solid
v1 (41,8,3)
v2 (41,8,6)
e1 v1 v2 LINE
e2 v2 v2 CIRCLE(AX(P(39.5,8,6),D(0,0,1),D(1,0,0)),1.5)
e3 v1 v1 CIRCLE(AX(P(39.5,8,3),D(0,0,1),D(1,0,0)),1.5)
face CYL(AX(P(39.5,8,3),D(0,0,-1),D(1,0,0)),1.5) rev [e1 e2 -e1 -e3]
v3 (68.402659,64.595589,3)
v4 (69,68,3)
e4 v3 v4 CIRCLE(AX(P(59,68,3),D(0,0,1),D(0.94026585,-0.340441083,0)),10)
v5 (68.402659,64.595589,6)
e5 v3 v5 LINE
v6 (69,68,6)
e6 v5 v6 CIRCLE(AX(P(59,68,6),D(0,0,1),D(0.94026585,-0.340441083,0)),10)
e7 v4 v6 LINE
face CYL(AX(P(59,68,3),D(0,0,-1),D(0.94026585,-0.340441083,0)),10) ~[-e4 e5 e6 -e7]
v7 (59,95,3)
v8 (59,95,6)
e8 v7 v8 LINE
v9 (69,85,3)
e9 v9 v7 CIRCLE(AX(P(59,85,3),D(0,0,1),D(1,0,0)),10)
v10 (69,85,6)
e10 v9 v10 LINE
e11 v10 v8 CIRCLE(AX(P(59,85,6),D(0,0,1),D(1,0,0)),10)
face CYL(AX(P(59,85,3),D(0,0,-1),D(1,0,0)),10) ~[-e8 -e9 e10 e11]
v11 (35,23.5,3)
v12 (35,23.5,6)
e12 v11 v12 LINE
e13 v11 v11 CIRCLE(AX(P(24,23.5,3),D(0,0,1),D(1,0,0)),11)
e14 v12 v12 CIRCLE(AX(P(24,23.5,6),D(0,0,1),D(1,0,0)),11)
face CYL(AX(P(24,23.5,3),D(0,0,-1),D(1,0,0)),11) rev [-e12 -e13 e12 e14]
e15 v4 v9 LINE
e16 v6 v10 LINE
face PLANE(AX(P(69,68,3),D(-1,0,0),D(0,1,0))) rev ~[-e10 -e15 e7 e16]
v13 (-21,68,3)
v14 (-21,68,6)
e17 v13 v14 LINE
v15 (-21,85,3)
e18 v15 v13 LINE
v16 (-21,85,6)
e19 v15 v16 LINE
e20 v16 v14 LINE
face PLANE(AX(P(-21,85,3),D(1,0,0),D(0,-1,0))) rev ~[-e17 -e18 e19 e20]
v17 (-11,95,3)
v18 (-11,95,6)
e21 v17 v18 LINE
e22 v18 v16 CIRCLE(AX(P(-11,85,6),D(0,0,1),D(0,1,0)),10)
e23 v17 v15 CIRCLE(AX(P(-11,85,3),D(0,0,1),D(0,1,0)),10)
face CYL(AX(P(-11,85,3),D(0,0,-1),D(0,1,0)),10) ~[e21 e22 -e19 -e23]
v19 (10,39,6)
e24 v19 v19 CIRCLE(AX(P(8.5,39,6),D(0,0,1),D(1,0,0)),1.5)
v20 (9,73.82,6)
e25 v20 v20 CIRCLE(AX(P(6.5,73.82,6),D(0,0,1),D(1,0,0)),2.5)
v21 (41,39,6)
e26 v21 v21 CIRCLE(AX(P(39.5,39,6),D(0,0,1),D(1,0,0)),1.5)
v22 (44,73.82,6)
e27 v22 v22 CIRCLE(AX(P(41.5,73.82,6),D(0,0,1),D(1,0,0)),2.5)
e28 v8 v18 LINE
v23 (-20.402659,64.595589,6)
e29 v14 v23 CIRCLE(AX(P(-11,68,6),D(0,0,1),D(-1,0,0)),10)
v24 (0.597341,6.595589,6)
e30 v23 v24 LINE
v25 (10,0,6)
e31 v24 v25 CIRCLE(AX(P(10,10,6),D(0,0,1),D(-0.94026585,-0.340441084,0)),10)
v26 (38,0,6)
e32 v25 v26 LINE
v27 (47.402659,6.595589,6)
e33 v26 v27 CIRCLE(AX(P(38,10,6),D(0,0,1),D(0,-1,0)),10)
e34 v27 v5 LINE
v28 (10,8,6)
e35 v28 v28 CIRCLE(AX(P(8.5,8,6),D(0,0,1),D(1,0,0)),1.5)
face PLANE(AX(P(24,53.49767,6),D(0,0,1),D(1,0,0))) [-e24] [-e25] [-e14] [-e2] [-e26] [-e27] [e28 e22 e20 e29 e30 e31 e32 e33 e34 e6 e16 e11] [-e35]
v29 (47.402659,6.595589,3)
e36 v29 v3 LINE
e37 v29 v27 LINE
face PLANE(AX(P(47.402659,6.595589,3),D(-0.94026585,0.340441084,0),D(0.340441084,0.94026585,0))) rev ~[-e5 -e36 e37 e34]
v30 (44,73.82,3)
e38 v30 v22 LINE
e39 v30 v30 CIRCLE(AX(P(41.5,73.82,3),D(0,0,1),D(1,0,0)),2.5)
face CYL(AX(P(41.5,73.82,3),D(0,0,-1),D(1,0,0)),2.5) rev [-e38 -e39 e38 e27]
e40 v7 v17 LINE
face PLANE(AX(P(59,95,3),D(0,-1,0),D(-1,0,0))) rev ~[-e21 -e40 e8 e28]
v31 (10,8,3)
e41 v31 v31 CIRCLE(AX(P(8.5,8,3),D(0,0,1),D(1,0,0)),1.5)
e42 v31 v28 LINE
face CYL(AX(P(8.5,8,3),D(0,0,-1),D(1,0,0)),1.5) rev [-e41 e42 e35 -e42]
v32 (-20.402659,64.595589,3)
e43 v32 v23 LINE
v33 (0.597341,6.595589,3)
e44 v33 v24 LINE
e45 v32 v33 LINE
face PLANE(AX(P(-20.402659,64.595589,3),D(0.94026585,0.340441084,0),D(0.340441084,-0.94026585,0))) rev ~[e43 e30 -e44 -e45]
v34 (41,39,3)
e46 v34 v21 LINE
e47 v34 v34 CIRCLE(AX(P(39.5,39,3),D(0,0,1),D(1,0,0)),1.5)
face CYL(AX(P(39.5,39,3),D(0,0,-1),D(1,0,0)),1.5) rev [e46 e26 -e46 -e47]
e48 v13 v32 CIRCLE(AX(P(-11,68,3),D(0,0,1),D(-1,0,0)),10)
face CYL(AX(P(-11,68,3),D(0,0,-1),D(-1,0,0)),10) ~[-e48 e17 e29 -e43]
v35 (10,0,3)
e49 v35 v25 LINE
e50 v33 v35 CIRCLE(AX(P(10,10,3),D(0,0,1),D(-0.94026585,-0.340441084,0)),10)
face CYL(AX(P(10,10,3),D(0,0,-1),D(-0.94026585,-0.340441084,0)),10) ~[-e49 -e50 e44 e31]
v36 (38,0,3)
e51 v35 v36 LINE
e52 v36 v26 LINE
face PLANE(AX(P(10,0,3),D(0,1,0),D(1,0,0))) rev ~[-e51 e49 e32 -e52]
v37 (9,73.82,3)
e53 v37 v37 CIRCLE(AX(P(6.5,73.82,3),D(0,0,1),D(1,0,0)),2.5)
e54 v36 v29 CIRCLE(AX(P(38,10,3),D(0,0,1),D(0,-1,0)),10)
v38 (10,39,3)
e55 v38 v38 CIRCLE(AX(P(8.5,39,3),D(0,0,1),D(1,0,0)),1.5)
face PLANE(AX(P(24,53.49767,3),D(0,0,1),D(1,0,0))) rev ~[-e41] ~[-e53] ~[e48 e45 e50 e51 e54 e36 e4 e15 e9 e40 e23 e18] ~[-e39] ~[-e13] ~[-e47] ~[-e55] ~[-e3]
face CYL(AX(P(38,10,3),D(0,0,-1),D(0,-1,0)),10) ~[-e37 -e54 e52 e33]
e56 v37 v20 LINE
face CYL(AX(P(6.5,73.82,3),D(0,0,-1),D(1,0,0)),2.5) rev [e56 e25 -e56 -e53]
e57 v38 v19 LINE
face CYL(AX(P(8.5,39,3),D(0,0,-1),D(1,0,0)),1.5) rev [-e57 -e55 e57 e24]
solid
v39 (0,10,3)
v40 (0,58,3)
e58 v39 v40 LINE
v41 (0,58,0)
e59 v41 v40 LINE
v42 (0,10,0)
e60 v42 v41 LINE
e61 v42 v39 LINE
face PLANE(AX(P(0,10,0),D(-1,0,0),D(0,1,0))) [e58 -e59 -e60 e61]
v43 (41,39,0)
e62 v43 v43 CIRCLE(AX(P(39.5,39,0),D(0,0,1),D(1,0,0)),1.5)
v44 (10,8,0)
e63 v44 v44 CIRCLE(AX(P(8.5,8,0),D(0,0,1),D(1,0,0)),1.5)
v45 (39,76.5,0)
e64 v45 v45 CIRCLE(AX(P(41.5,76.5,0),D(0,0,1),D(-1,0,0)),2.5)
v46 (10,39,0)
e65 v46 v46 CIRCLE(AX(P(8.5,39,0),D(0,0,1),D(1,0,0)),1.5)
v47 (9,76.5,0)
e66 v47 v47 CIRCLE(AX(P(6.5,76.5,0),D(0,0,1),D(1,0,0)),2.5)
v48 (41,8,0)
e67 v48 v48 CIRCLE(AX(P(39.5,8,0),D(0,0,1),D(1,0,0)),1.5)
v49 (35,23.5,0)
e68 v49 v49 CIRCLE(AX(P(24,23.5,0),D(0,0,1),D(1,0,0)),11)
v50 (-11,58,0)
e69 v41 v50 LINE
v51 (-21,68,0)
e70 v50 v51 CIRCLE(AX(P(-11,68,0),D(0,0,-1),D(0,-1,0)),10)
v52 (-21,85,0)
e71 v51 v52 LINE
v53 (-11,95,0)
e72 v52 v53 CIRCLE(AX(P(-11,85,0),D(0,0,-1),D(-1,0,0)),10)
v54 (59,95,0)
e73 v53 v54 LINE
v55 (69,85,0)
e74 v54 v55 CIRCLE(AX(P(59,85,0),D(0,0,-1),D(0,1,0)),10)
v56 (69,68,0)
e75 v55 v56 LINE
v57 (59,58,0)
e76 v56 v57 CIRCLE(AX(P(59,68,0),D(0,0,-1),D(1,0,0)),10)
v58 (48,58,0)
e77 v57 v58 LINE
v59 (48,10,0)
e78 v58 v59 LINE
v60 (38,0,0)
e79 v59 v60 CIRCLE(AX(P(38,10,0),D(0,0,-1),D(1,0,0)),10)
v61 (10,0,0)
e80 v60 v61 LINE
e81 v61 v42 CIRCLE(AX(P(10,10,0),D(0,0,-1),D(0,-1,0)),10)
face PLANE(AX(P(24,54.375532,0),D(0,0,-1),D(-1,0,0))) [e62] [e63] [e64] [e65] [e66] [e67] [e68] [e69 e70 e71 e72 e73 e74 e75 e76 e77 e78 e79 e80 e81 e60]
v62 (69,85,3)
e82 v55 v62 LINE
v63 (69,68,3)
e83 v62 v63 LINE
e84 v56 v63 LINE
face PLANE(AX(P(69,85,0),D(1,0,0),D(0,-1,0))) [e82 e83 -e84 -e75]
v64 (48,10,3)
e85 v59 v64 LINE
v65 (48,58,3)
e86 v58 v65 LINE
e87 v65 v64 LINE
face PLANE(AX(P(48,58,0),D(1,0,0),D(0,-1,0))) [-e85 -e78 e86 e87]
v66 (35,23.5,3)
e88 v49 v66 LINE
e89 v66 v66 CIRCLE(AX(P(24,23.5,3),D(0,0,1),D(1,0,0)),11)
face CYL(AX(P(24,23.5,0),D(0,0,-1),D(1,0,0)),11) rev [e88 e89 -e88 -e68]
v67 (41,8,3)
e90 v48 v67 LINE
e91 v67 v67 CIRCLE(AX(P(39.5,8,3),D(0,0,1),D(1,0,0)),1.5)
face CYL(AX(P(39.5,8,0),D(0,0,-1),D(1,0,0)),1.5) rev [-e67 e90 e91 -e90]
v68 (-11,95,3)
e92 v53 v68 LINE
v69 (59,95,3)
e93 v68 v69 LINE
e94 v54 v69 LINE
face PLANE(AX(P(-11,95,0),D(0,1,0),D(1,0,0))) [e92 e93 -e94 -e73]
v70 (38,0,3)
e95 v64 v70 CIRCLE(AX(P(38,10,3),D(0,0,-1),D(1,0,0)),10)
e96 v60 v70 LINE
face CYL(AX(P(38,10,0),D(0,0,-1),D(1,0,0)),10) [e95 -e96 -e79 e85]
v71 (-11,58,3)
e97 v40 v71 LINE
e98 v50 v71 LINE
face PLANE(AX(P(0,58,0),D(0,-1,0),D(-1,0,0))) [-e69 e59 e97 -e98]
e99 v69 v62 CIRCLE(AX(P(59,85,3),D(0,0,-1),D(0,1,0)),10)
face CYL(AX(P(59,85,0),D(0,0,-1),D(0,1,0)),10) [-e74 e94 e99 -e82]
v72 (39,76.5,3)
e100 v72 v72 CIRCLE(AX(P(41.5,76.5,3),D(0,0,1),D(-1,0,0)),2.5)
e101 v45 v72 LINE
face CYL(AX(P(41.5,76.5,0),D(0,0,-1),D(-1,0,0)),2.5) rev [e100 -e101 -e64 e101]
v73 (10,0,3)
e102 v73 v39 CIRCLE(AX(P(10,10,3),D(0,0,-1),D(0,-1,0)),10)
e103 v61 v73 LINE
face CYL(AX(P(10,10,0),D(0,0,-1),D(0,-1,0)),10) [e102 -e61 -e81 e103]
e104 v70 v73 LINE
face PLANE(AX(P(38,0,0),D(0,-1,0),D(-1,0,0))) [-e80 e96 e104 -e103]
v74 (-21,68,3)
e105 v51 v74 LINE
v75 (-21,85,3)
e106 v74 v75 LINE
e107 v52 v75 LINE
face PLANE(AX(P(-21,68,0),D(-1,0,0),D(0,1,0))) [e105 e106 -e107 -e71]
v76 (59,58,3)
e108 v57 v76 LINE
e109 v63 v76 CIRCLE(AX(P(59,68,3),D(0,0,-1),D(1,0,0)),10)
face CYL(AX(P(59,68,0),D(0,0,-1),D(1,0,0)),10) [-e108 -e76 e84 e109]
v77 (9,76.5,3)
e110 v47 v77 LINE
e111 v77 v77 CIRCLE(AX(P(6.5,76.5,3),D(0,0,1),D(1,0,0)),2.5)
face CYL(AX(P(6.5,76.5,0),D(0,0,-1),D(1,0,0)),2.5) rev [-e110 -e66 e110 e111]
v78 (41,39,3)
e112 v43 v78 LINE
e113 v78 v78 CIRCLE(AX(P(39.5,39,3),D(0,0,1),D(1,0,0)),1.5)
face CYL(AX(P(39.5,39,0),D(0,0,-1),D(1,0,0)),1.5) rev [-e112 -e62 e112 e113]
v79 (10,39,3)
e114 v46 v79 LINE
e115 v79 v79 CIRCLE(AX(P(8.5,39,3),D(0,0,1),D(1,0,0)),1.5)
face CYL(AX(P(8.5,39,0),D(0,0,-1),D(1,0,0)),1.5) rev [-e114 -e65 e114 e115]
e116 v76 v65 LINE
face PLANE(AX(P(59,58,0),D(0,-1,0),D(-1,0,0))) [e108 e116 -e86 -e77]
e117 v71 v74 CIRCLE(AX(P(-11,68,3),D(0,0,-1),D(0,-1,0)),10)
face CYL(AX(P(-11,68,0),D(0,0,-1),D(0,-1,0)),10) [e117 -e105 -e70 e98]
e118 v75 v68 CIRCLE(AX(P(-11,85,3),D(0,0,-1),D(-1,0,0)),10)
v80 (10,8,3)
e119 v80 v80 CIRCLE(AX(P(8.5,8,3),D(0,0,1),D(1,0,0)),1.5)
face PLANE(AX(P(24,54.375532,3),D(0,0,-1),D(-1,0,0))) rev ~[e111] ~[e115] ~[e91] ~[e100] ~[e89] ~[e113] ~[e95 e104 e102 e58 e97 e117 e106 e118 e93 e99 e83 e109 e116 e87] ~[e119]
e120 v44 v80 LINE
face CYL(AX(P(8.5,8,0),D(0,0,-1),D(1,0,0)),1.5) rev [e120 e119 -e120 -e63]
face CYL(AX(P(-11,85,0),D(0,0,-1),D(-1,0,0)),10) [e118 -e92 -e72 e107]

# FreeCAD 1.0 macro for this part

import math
import FreeCAD as App
import Part
import Sketcher

V = App.Vector
Q = App.Units.Quantity

doc = App.newDocument("Part")
body = doc.addObject("PartDesign::Body", "Body")

sketch1 = body.newObject("Sketcher::SketchObject", "Sketch")
sketch1.AttachmentSupport = (doc.getObject("XY_Plane"), [""])
sketch1.MapMode = "FlatFace"
sketch1.addGeometry([
    Part.LineSegment(V(0, 58, 0), V(0, 10, 0)),
    Part.ArcOfCircle(Part.Circle(V(10, 10, 0), V(0, 0, 1), 10), math.radians(180), math.radians(270)),
    Part.LineSegment(V(10, 0, 0), V(38, 0, 0)),
    Part.ArcOfCircle(Part.Circle(V(38, 10, 0), V(0, 0, 1), 10), math.radians(-90), math.radians(0)),
    Part.LineSegment(V(48, 10, 0), V(48, 58, 0)),
    Part.LineSegment(V(48, 58, 0), V(59, 58, 0)),
    Part.ArcOfCircle(Part.Circle(V(59, 68, 0), V(0, 0, 1), 10), math.radians(-90), math.radians(0)),
    Part.LineSegment(V(69, 68, 0), V(69, 85, 0)),
    Part.ArcOfCircle(Part.Circle(V(59, 85, 0), V(0, 0, 1), 10), math.radians(0), math.radians(90)),
    Part.LineSegment(V(59, 95, 0), V(-11, 95, 0)),
    Part.ArcOfCircle(Part.Circle(V(-11, 85, 0), V(0, 0, 1), 10), math.radians(90), math.radians(180)),
    Part.LineSegment(V(-21, 85, 0), V(-21, 68, 0)),
    Part.ArcOfCircle(Part.Circle(V(-11, 68, 0), V(0, 0, 1), 10), math.radians(180), math.radians(270)),
    Part.LineSegment(V(-11, 58, 0), V(0, 58, 0)),
    Part.Circle(V(39.5, 8, 0), V(0, 0, 1), 1.5),
    Part.Circle(V(39.5, 39, 0), V(0, 0, 1), 1.5),
    Part.Circle(V(24, 23.5, 0), V(0, 0, 1), 11),
    Part.Circle(V(8.5, 8, 0), V(0, 0, 1), 1.5),
    Part.Circle(V(8.5, 39, 0), V(0, 0, 1), 1.5),
    Part.Circle(V(41.5, 76.5, 0), V(0, 0, 1), 2.5),
    Part.Circle(V(6.5, 76.5, 0), V(0, 0, 1), 2.5),
], False)
sketch1.addConstraint([
    Sketcher.Constraint("Tangent", 0, 2, 1, 1),
    Sketcher.Constraint("Tangent", 1, 2, 2, 1),
    Sketcher.Constraint("Tangent", 2, 2, 3, 1),
    Sketcher.Constraint("Tangent", 3, 2, 4, 1),
    Sketcher.Constraint("Coincident", 4, 2, 5, 1),
    Sketcher.Constraint("Tangent", 5, 2, 6, 1),
    Sketcher.Constraint("Tangent", 6, 2, 7, 1),
    Sketcher.Constraint("Tangent", 7, 2, 8, 1),
    Sketcher.Constraint("Tangent", 8, 2, 9, 1),
    Sketcher.Constraint("Tangent", 9, 2, 10, 1),
    Sketcher.Constraint("Tangent", 10, 2, 11, 1),
    Sketcher.Constraint("Tangent", 11, 2, 12, 1),
    Sketcher.Constraint("Tangent", 12, 2, 13, 1),
    Sketcher.Constraint("Coincident", 13, 2, 0, 1),
    Sketcher.Constraint("Vertical", 0),
    Sketcher.Constraint("Horizontal", 2),
    Sketcher.Constraint("Vertical", 4),
    Sketcher.Constraint("Horizontal", 5),
    Sketcher.Constraint("Vertical", 7),
    Sketcher.Constraint("Horizontal", 9),
    Sketcher.Constraint("Vertical", 11),
    Sketcher.Constraint("Horizontal", 13),
    Sketcher.Constraint("Equal", 1, 3),
    Sketcher.Constraint("Equal", 3, 6),
    Sketcher.Constraint("Equal", 6, 8),
    Sketcher.Constraint("Equal", 8, 10),
    Sketcher.Constraint("Equal", 10, 12),
    Sketcher.Constraint("Equal", 14, 15),
    Sketcher.Constraint("Equal", 15, 17),
    Sketcher.Constraint("Equal", 17, 18),
    Sketcher.Constraint("Equal", 19, 20),
    Sketcher.Constraint("PointOnObject", 0, 2, -2),
    Sketcher.Constraint("PointOnObject", 1, 2, -1),
    Sketcher.Constraint("Horizontal", 6, 3, 12, 3),
    Sketcher.Constraint("Horizontal", 14, 3, 17, 3),
    Sketcher.Constraint("Horizontal", 15, 3, 18, 3),
    Sketcher.Constraint("Horizontal", 19, 3, 20, 3),
    Sketcher.Constraint("Vertical", 14, 3, 15, 3),
    Sketcher.Constraint("Vertical", 17, 3, 18, 3),
    Sketcher.Constraint("Equal", 5, 13),
    Sketcher.Constraint("Diameter", 14, Q("3 mm")),
    Sketcher.Constraint("Diameter", 16, Q("22 mm")),
    Sketcher.Constraint("Diameter", 19, Q("5 mm")),
    Sketcher.Constraint("Radius", 1, Q("10 mm")),
    Sketcher.Constraint("DistanceX", 2, 1, 2, 2, Q("28 mm")),
    Sketcher.Constraint("DistanceX", 5, 1, 5, 2, Q("11 mm")),
    Sketcher.Constraint("DistanceY", 0, 2, 0, 1, Q("48 mm")),
    Sketcher.Constraint("DistanceY", 7, 1, 7, 2, Q("17 mm")),
    Sketcher.Constraint("DistanceY", -1, 1, 14, 3, Q("8 mm")),
    Sketcher.Constraint("DistanceY", -1, 1, 15, 3, Q("39 mm")),
    Sketcher.Constraint("DistanceX", -1, 1, 16, 3, Q("24 mm")),
    Sketcher.Constraint("DistanceX", 17, 3, 14, 3, Q("31 mm")),
    Sketcher.Constraint("DistanceX", 15, 3, 19, 3, Q("2 mm")),
    Sketcher.Constraint("DistanceX", 20, 3, 19, 3, Q("35 mm")),
    Sketcher.Constraint("DistanceX", -1, 1, 14, 3, Q("39.5 mm")),
    Sketcher.Constraint("DistanceY", -1, 1, 16, 3, Q("23.5 mm")),
    Sketcher.Constraint("DistanceY", -1, 1, 19, 3, Q("76.5 mm")),
])
pad1 = body.newObject("PartDesign::Pad", "Pad")
pad1.Profile = sketch1
pad1.Length = 3
body2 = doc.addObject("PartDesign::Body", "Body001")

sketch2 = body2.newObject("Sketcher::SketchObject", "Sketch001")
sketch2.AttachmentSupport = (doc.getObject("XY_Plane001"), [""])
sketch2.MapMode = "FlatFace"
sketch2.AttachmentOffset = App.Placement(V(0, 0, 3), App.Rotation())
sketch2.addGeometry([
    Part.LineSegment(V(-20.402659, 64.595589, 0), V(0.597341, 6.595589, 0)),
    Part.ArcOfCircle(Part.Circle(V(10, 10, 0), V(0, 0, 1), 10), math.radians(-160.09625), math.radians(-90)),
    Part.LineSegment(V(10, 0, 0), V(38, 0, 0)),
    Part.ArcOfCircle(Part.Circle(V(38, 10, 0), V(0, 0, 1), 10), math.radians(-90), math.radians(-19.90375)),
    Part.LineSegment(V(47.402659, 6.595589, 0), V(68.402659, 64.595589, 0)),
    Part.ArcOfCircle(Part.Circle(V(59, 68, 0), V(0, 0, 1), 10), math.radians(-19.90375), math.radians(0)),
    Part.LineSegment(V(69, 68, 0), V(69, 85, 0)),
    Part.ArcOfCircle(Part.Circle(V(59, 85, 0), V(0, 0, 1), 10), math.radians(0), math.radians(90)),
    Part.LineSegment(V(59, 95, 0), V(-11, 95, 0)),
    Part.ArcOfCircle(Part.Circle(V(-11, 85, 0), V(0, 0, 1), 10), math.radians(90), math.radians(180)),
    Part.LineSegment(V(-21, 85, 0), V(-21, 68, 0)),
    Part.ArcOfCircle(Part.Circle(V(-11, 68, 0), V(0, 0, 1), 10), math.radians(-180), math.radians(-160.09625)),
    Part.Circle(V(8.5, 8, 0), V(0, 0, 1), 1.5),
    Part.Circle(V(8.5, 39, 0), V(0, 0, 1), 1.5),
    Part.Circle(V(24, 23.5, 0), V(0, 0, 1), 11),
    Part.Circle(V(39.5, 8, 0), V(0, 0, 1), 1.5),
    Part.Circle(V(39.5, 39, 0), V(0, 0, 1), 1.5),
    Part.Circle(V(6.5, 73.82, 0), V(0, 0, 1), 2.5),
    Part.Circle(V(41.5, 73.82, 0), V(0, 0, 1), 2.5),
], False)
sketch2.addConstraint([
    Sketcher.Constraint("Tangent", 0, 2, 1, 1),
    Sketcher.Constraint("Tangent", 1, 2, 2, 1),
    Sketcher.Constraint("Tangent", 2, 2, 3, 1),
    Sketcher.Constraint("Tangent", 3, 2, 4, 1),
    Sketcher.Constraint("Tangent", 4, 2, 5, 1),
    Sketcher.Constraint("Tangent", 5, 2, 6, 1),
    Sketcher.Constraint("Tangent", 6, 2, 7, 1),
    Sketcher.Constraint("Tangent", 7, 2, 8, 1),
    Sketcher.Constraint("Tangent", 8, 2, 9, 1),
    Sketcher.Constraint("Tangent", 9, 2, 10, 1),
    Sketcher.Constraint("Tangent", 10, 2, 11, 1),
    Sketcher.Constraint("Tangent", 11, 2, 0, 1),
    Sketcher.Constraint("Horizontal", 2),
    Sketcher.Constraint("Vertical", 6),
    Sketcher.Constraint("Horizontal", 8),
    Sketcher.Constraint("Vertical", 10),
    Sketcher.Constraint("Equal", 1, 3),
    Sketcher.Constraint("Equal", 3, 5),
    Sketcher.Constraint("Equal", 5, 7),
    Sketcher.Constraint("Equal", 7, 9),
    Sketcher.Constraint("Equal", 9, 11),
    Sketcher.Constraint("Equal", 12, 13),
    Sketcher.Constraint("Equal", 13, 15),
    Sketcher.Constraint("Equal", 15, 16),
    Sketcher.Constraint("Equal", 17, 18),
    Sketcher.Constraint("PointOnObject", 1, 2, -1),
    Sketcher.Constraint("Horizontal", 5, 3, 11, 3),
    Sketcher.Constraint("Horizontal", 12, 3, 15, 3),
    Sketcher.Constraint("Horizontal", 13, 3, 16, 3),
    Sketcher.Constraint("Horizontal", 17, 3, 18, 3),
    Sketcher.Constraint("Horizontal", 0, 2, 3, 2),
    Sketcher.Constraint("Vertical", 12, 3, 13, 3),
    Sketcher.Constraint("Vertical", 15, 3, 16, 3),
    Sketcher.Constraint("Diameter", 12, Q("3 mm")),
    Sketcher.Constraint("Diameter", 14, Q("22 mm")),
    Sketcher.Constraint("Diameter", 17, Q("5 mm")),
    Sketcher.Constraint("Radius", 1, Q("10 mm")),
    Sketcher.Constraint("DistanceX", 2, 1, 2, 2, Q("28 mm")),
    Sketcher.Constraint("DistanceX", 8, 2, 8, 1, Q("70 mm")),
    Sketcher.Constraint("DistanceY", 6, 1, 6, 2, Q("17 mm")),
    Sketcher.Constraint("DistanceX", -1, 1, 1, 3, Q("10 mm")),
    Sketcher.Constraint("DistanceY", -1, 1, 5, 3, Q("68 mm")),
    Sketcher.Constraint("DistanceY", -1, 1, 12, 3, Q("8 mm")),
    Sketcher.Constraint("DistanceY", -1, 1, 13, 3, Q("39 mm")),
    Sketcher.Constraint("DistanceX", -1, 1, 14, 3, Q("24 mm")),
    Sketcher.Constraint("DistanceX", 12, 3, 15, 3, Q("31 mm")),
    Sketcher.Constraint("DistanceX", 17, 3, 13, 3, Q("2 mm")),
    Sketcher.Constraint("DistanceX", 16, 3, 18, 3, Q("2 mm")),
    Sketcher.Constraint("DistanceX", -1, 1, 12, 3, Q("8.5 mm")),
    Sketcher.Constraint("DistanceY", -1, 1, 14, 3, Q("23.5 mm")),
    Sketcher.Constraint("DistanceY", -1, 1, 17, 3, Q("73.82 mm")),
])
pad2 = body2.newObject("PartDesign::Pad", "Pad001")
pad2.Profile = sketch2
pad2.Length = 3

doc.recompute()
